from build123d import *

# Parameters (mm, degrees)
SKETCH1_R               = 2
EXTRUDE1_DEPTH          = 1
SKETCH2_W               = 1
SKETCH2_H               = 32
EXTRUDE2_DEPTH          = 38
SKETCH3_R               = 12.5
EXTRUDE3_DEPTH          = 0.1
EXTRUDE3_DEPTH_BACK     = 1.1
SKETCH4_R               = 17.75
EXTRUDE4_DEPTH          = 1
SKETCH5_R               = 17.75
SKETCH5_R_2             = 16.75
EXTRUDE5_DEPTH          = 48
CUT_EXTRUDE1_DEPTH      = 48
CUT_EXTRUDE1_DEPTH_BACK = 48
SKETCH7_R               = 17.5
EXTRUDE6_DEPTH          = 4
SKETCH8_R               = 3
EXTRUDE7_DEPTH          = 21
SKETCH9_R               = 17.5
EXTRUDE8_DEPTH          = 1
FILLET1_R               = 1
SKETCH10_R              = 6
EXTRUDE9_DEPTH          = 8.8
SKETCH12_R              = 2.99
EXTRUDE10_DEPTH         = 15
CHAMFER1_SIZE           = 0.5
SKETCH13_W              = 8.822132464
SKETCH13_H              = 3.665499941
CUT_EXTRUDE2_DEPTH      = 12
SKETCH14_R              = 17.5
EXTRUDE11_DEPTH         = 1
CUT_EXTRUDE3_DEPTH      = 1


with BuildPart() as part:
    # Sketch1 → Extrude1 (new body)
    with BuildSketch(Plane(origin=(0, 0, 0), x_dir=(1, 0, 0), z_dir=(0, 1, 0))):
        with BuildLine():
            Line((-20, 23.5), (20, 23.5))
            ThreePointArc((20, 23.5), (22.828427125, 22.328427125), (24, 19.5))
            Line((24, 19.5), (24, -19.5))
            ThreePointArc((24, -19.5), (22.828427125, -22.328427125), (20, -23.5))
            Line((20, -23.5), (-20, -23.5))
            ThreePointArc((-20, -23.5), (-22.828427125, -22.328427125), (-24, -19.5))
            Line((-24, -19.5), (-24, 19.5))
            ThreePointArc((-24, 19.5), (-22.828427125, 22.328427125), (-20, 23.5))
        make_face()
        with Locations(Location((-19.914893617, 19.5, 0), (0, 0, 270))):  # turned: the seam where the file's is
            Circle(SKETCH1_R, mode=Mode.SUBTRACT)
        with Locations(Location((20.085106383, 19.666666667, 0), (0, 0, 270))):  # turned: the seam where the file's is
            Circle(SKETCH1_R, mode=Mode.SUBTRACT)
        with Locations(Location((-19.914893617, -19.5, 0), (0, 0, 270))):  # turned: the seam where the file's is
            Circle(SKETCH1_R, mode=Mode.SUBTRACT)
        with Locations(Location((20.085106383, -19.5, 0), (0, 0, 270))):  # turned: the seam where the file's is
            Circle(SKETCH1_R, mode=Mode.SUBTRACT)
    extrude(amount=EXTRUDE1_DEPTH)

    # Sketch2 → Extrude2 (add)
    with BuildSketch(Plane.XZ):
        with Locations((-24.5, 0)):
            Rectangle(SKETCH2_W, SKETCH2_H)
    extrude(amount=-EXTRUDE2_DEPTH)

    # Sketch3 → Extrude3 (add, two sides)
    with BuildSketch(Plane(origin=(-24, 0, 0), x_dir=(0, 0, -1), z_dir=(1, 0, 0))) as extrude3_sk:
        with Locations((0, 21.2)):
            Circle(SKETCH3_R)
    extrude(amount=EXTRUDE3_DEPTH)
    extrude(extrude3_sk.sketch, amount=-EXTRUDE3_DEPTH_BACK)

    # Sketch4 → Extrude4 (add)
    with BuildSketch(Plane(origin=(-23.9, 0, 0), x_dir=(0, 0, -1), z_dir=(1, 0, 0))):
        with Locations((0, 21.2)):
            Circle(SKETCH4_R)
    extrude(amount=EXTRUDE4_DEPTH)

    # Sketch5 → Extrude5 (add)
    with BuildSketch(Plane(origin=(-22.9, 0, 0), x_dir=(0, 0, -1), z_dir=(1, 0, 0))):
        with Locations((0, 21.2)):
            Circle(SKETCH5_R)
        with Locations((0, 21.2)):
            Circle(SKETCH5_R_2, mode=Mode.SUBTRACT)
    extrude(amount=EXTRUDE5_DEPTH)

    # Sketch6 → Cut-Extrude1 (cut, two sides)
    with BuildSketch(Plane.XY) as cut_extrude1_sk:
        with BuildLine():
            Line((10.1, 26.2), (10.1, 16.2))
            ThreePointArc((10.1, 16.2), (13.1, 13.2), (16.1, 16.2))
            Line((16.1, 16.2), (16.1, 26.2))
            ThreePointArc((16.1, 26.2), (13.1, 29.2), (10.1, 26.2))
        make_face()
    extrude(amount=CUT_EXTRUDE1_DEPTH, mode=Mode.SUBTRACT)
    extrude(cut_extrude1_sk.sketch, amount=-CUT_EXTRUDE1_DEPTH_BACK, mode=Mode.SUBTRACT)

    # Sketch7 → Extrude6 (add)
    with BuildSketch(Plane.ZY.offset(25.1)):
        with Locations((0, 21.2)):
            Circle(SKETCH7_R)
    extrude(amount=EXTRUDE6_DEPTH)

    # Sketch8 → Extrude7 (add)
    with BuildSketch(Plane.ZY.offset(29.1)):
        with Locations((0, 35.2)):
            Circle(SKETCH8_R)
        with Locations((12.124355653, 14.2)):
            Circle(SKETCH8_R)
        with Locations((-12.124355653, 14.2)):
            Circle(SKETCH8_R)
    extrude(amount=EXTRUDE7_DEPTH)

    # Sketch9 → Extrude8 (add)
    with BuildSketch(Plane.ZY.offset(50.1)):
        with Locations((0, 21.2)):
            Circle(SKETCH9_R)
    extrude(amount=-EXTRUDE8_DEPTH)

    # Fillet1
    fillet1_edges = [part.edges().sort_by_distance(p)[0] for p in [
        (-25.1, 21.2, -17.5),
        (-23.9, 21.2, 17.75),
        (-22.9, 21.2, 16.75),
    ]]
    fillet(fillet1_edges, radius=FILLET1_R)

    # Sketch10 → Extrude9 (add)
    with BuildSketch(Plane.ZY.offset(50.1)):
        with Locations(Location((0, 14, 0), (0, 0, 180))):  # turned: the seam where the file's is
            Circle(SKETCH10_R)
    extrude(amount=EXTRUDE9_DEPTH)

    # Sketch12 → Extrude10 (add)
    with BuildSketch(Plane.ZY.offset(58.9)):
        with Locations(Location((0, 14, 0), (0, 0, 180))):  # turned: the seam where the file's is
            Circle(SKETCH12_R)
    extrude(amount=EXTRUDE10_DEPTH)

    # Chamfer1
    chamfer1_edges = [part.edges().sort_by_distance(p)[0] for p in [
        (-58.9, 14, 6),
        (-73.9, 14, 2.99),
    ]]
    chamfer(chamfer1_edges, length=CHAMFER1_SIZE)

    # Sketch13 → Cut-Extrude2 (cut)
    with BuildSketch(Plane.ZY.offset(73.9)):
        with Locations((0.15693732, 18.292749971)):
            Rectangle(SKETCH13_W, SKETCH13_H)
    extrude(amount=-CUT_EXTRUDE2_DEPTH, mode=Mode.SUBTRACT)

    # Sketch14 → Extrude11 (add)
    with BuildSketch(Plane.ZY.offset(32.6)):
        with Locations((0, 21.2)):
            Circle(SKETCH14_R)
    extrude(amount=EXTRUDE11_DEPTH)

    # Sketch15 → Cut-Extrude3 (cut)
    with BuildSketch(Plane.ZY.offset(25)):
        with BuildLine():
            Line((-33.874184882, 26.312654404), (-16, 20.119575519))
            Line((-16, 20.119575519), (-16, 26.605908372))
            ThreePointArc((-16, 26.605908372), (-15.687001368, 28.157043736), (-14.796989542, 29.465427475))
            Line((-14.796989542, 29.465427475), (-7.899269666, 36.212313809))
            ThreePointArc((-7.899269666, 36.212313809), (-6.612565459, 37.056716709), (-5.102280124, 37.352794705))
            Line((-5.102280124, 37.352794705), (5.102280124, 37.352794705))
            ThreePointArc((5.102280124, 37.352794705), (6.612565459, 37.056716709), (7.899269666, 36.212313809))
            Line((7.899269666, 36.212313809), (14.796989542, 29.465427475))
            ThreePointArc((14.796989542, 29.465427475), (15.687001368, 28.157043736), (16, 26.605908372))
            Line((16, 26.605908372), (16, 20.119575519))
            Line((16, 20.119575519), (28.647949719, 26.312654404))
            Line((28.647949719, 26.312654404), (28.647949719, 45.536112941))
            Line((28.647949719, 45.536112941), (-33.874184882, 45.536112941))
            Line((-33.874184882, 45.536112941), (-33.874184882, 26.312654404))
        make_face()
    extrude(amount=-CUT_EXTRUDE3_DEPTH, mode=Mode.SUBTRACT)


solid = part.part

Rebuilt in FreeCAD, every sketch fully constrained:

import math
import FreeCAD as App
import Part
import Sketcher
from FreeCAD import Vector
Q = App.Units.Quantity


def edges_at(feature, points):
    """Names of the edges that pass closest to the given points."""
    edges = feature.Shape.Edges
    near = lambda p: min(range(len(edges)), key=lambda i: edges[i].distToShape(Part.Vertex(*p))[0])
    return sorted({f"Edge{near(p) + 1}" for p in points})

doc = App.newDocument("Part")
body = doc.addObject("PartDesign::Body", "Body")

# Sketch on XZ plane
sketch1 = body.newObject("Sketcher::SketchObject", "Sketch")
sketch1.AttachmentSupport = (doc.getObject("XZ_Plane"), [""])
sketch1.MapMode = "FlatFace"
sketch1.addGeometry([
    Part.LineSegment(Vector(20, -23.5, 0), Vector(-20, -23.5, 0)),  # 0
    Part.ArcOfCircle(Part.Circle(Vector(-20, -19.5, 0), Vector(0, 0, 1), 4), math.radians(180), math.radians(270)),  # 1
    Part.LineSegment(Vector(-24, -19.5, 0), Vector(-24, 19.5, 0)),  # 2
    Part.ArcOfCircle(Part.Circle(Vector(-20, 19.5, 0), Vector(0, 0, 1), 4), math.radians(90), math.radians(180)),  # 3
    Part.LineSegment(Vector(-20, 23.5, 0), Vector(20, 23.5, 0)),  # 4
    Part.ArcOfCircle(Part.Circle(Vector(20, 19.5, 0), Vector(0, 0, 1), 4), math.radians(0), math.radians(90)),  # 5
    Part.LineSegment(Vector(24, 19.5, 0), Vector(24, -19.5, 0)),  # 6
    Part.ArcOfCircle(Part.Circle(Vector(20, -19.5, 0), Vector(0, 0, 1), 4), math.radians(-90), math.radians(0)),  # 7
    Part.Circle(Vector(20.1, 19.5, 0), Vector(0, 0, 1), 2),  # 8
    Part.Circle(Vector(-19.9, 19.5, 0), Vector(0, 0, 1), 2),  # 9
    Part.Circle(Vector(20.1, -19.7, 0), Vector(0, 0, 1), 2),  # 10
    Part.Circle(Vector(-19.9, -19.5, 0), Vector(0, 0, 1), 2),  # 11
], False)
sketch1.addConstraint([
    Sketcher.Constraint("Tangent", 0, 2, 1, 2),
    Sketcher.Constraint("Tangent", 1, 1, 2, 1),
    Sketcher.Constraint("Tangent", 2, 2, 3, 2),
    Sketcher.Constraint("Tangent", 3, 1, 4, 1),
    Sketcher.Constraint("Tangent", 4, 2, 5, 2),
    Sketcher.Constraint("Tangent", 5, 1, 6, 1),
    Sketcher.Constraint("Tangent", 6, 2, 7, 2),
    Sketcher.Constraint("Tangent", 7, 1, 0, 1),
    Sketcher.Constraint("Horizontal", 0),
    Sketcher.Constraint("Vertical", 2),
    Sketcher.Constraint("Horizontal", 4),
    Sketcher.Constraint("Vertical", 6),
    Sketcher.Constraint("Equal", 1, 3),
    Sketcher.Constraint("Equal", 3, 5),
    Sketcher.Constraint("Equal", 5, 7),
    Sketcher.Constraint("Equal", 8, 9),
    Sketcher.Constraint("Equal", 9, 10),
    Sketcher.Constraint("Equal", 10, 11),
    Sketcher.Constraint("Symmetric", 1, 3, 5, 3, -1, 1),
    Sketcher.Constraint("Symmetric", 9, 3, 11, 3, -1),
    Sketcher.Constraint("Horizontal", 5, 3, 8, 3),
    Sketcher.Constraint("Horizontal", 8, 3, 9, 3),
    Sketcher.Constraint("Vertical", 8, 3, 10, 3),
    Sketcher.Constraint("Diameter", 8, Q("4 mm")),
    Sketcher.Constraint("Radius", 1, Q("4 mm")),
    Sketcher.Constraint("DistanceX", 0, 2, 0, 1, Q("40 mm")),
    Sketcher.Constraint("DistanceY", 2, 1, 2, 2, Q("39 mm")),
    Sketcher.Constraint("DistanceX", 9, 3, 8, 3, Q("40 mm")),
    Sketcher.Constraint("DistanceX", -1, 1, 8, 3, Q("20.085106 mm")),
    Sketcher.Constraint("DistanceY", 10, 3, -1, 1, Q("19.666667 mm")),
])
pad1 = body.newObject("PartDesign::Pad", "Pad")
pad1.Profile = sketch1
pad1.Length = 1
pad1.Reversed = True

# Sketch on XZ plane
sketch2 = body.newObject("Sketcher::SketchObject", "Sketch001")
sketch2.AttachmentSupport = (doc.getObject("XZ_Plane"), [""])
sketch2.MapMode = "FlatFace"
sketch2.addGeometry([
    Part.LineSegment(Vector(-25, 16, 0), Vector(-25, -16, 0)),
    Part.LineSegment(Vector(-25, -16, 0), Vector(-24, -16, 0)),
    Part.LineSegment(Vector(-24, -16, 0), Vector(-24, 16, 0)),
    Part.LineSegment(Vector(-24, 16, 0), Vector(-25, 16, 0)),
], False)
sketch2.addConstraint([
    Sketcher.Constraint("Coincident", 0, 2, 1, 1),
    Sketcher.Constraint("Coincident", 1, 2, 2, 1),
    Sketcher.Constraint("Coincident", 2, 2, 3, 1),
    Sketcher.Constraint("Coincident", 3, 2, 0, 1),
    Sketcher.Constraint("Vertical", 0),
    Sketcher.Constraint("Horizontal", 1),
    Sketcher.Constraint("Vertical", 2),
    Sketcher.Constraint("Horizontal", 3),
    Sketcher.Constraint("DistanceX", 1, 1, 1, 2, Q("1 mm")),
    Sketcher.Constraint("DistanceY", 0, 2, 0, 1, Q("32 mm")),
    Sketcher.Constraint("DistanceX", 0, 2, -1, 1, Q("25 mm")),
    Sketcher.Constraint("DistanceY", 0, 2, -1, 1, Q("16 mm")),
])
pad2 = body.newObject("PartDesign::Pad", "Pad001")
pad2.Profile = sketch2
pad2.Length = 38
pad2.Reversed = True

# Sketch on YZ plane
sketch3 = body.newObject("Sketcher::SketchObject", "Sketch002")
sketch3.AttachmentSupport = (doc.getObject("YZ_Plane"), [""])
sketch3.MapMode = "FlatFace"
sketch3.AttachmentOffset = App.Placement(Vector(0, 0, -24), App.Rotation())
sketch3.addGeometry(Part.Circle(Vector(21, 0, 0), Vector(0, 0, 1), 12), False)
sketch3.addConstraint([
    Sketcher.Constraint("PointOnObject", 0, 3, -1),
    Sketcher.Constraint("Diameter", 0, Q("25 mm")),
    Sketcher.Constraint("DistanceX", -1, 1, 0, 3, Q("21.2 mm")),
])
pad3 = body.newObject("PartDesign::Pad", "Pad002")
pad3.Profile = sketch3
pad3.Type = "TwoLengths"
pad3.Length = 0.1
pad3.Length2 = 1.1

# Sketch on YZ plane
sketch4 = body.newObject("Sketcher::SketchObject", "Sketch003")
sketch4.AttachmentSupport = (doc.getObject("YZ_Plane"), [""])
sketch4.MapMode = "FlatFace"
sketch4.AttachmentOffset = App.Placement(Vector(0, 0, -23.9), App.Rotation())
sketch4.addGeometry(Part.Circle(Vector(21, 0, 0), Vector(0, 0, 1), 18), False)
sketch4.addConstraint([
    Sketcher.Constraint("PointOnObject", 0, 3, -1),
    Sketcher.Constraint("Diameter", 0, Q("35.5 mm")),
    Sketcher.Constraint("DistanceX", -1, 1, 0, 3, Q("21.2 mm")),
])
pad4 = body.newObject("PartDesign::Pad", "Pad003")
pad4.Profile = sketch4
pad4.Length = 1

# Sketch on YZ plane
sketch5 = body.newObject("Sketcher::SketchObject", "Sketch004")
sketch5.AttachmentSupport = (doc.getObject("YZ_Plane"), [""])
sketch5.MapMode = "FlatFace"
sketch5.AttachmentOffset = App.Placement(Vector(0, 0, -22.9), App.Rotation())
sketch5.addGeometry([
    Part.Circle(Vector(21, 0, 0), Vector(0, 0, 1), 18),
    Part.Circle(Vector(21, 0, 0), Vector(0, 0, 1), 17),
], False)
sketch5.addConstraint([
    Sketcher.Constraint("Coincident", 1, 3, 0, 3),
    Sketcher.Constraint("PointOnObject", 0, 3, -1),
    Sketcher.Constraint("Diameter", 0, Q("35.5 mm")),
    Sketcher.Constraint("Diameter", 1, Q("33.5 mm")),
    Sketcher.Constraint("DistanceX", -1, 1, 0, 3, Q("21.2 mm")),
])
pad5 = body.newObject("PartDesign::Pad", "Pad004")
pad5.Profile = sketch5
pad5.Length = 48

# Sketch on XY plane
sketch6 = body.newObject("Sketcher::SketchObject", "Sketch005")
sketch6.AttachmentSupport = (doc.getObject("XY_Plane"), [""])
sketch6.MapMode = "FlatFace"
sketch6.addGeometry([
    Part.LineSegment(Vector(10.1, 26.2, 0), Vector(10.1, 16.2, 0)),
    Part.ArcOfCircle(Part.Circle(Vector(13.1, 16.2, 0), Vector(0, 0, 1), 3), math.radians(180), math.radians(360)),
    Part.LineSegment(Vector(16.1, 16.2, 0), Vector(16.1, 26.2, 0)),
    Part.ArcOfCircle(Part.Circle(Vector(13.1, 26.2, 0), Vector(0, 0, 1), 3), math.radians(0), math.radians(180)),
], False)
sketch6.addConstraint([
    Sketcher.Constraint("Tangent", 0, 2, 1, 1),
    Sketcher.Constraint("Tangent", 1, 2, 2, 1),
    Sketcher.Constraint("Tangent", 2, 2, 3, 1),
    Sketcher.Constraint("Tangent", 3, 2, 0, 1),
    Sketcher.Constraint("Vertical", 0),
    Sketcher.Constraint("Vertical", 2),
    Sketcher.Constraint("Radius", 1, Q("3 mm")),
    Sketcher.Constraint("DistanceY", 0, 2, 0, 1, Q("10 mm")),
    Sketcher.Constraint("DistanceX", -1, 1, 1, 3, Q("13.1 mm")),
    Sketcher.Constraint("DistanceY", -1, 1, 1, 3, Q("16.2 mm")),
])
pocket1 = body.newObject("PartDesign::Pocket", "Pocket")
pocket1.Profile = sketch6
pocket1.Type = "ThroughAll"
pocket1.Midplane = True

# Sketch on YZ plane
sketch7 = body.newObject("Sketcher::SketchObject", "Sketch006")
sketch7.AttachmentSupport = (doc.getObject("YZ_Plane"), [""])
sketch7.MapMode = "FlatFace"
sketch7.AttachmentOffset = App.Placement(Vector(0, 0, -25.1), App.Rotation())
sketch7.addGeometry(Part.Circle(Vector(21, 0, 0), Vector(0, 0, 1), 18), False)
sketch7.addConstraint([
    Sketcher.Constraint("PointOnObject", 0, 3, -1),
    Sketcher.Constraint("Diameter", 0, Q("35 mm")),
    Sketcher.Constraint("DistanceX", -1, 1, 0, 3, Q("21.2 mm")),
])
pad6 = body.newObject("PartDesign::Pad", "Pad005")
pad6.Profile = sketch7
pad6.Length = 4
pad6.Reversed = True

# Sketch on YZ plane
sketch8 = body.newObject("Sketcher::SketchObject", "Sketch007")
sketch8.AttachmentSupport = (doc.getObject("YZ_Plane"), [""])
sketch8.MapMode = "FlatFace"
sketch8.AttachmentOffset = App.Placement(Vector(0, 0, -29.1), App.Rotation())
sketch8.addGeometry([
    Part.Circle(Vector(35.2, 0, 0), Vector(0, 0, 1), 3),
    Part.Circle(Vector(14.2, 12.1, 0), Vector(0, 0, 1), 3),
    Part.Circle(Vector(14.2, -12.1, 0), Vector(0, 0, 1), 3),
], False)
sketch8.addConstraint([
    Sketcher.Constraint("Equal", 0, 1),
    Sketcher.Constraint("Equal", 1, 2),
    Sketcher.Constraint("Symmetric", 1, 3, 2, 3, -1),
    Sketcher.Constraint("PointOnObject", 0, 3, -1),
    Sketcher.Constraint("Diameter", 0, Q("6 mm")),
    Sketcher.Constraint("DistanceX", 1, 3, 0, 3, Q("21 mm")),
    Sketcher.Constraint("DistanceX", -1, 1, 0, 3, Q("35.2 mm")),
    Sketcher.Constraint("DistanceY", 2, 3, 1, 3, Q("24.248711 mm")),
])
pad7 = body.newObject("PartDesign::Pad", "Pad006")
pad7.Profile = sketch8
pad7.Length = 21
pad7.Reversed = True

# Sketch on YZ plane
sketch9 = body.newObject("Sketcher::SketchObject", "Sketch008")
sketch9.AttachmentSupport = (doc.getObject("YZ_Plane"), [""])
sketch9.MapMode = "FlatFace"
sketch9.AttachmentOffset = App.Placement(Vector(0, 0, -50.1), App.Rotation())
sketch9.addGeometry(Part.Circle(Vector(21, 0, 0), Vector(0, 0, 1), 18), False)
sketch9.addConstraint([
    Sketcher.Constraint("PointOnObject", 0, 3, -1),
    Sketcher.Constraint("Diameter", 0, Q("35 mm")),
    Sketcher.Constraint("DistanceX", -1, 1, 0, 3, Q("21.2 mm")),
])
pad8 = body.newObject("PartDesign::Pad", "Pad007")
pad8.Profile = sketch9
pad8.Length = 1
doc.recompute()

fillet = body.newObject("PartDesign::Fillet", "Fillet")
fillet.Base = (pad8, edges_at(pad8, [(-25.1, 21.2, -17.5), (-23.9, 21.2, 17.75), (-22.9, 21.2, 16.75)]))
fillet.Radius = 1

# Sketch on YZ plane
sketch10 = body.newObject("Sketcher::SketchObject", "Sketch009")
sketch10.AttachmentSupport = (doc.getObject("YZ_Plane"), [""])
sketch10.MapMode = "FlatFace"
sketch10.AttachmentOffset = App.Placement(Vector(0, 0, -50.1), App.Rotation())
sketch10.addGeometry(Part.Circle(Vector(14, 0, 0), Vector(0, 0, 1), 6), False)
sketch10.addConstraint([
    Sketcher.Constraint("PointOnObject", 0, 3, -1),
    Sketcher.Constraint("Diameter", 0, Q("12 mm")),
    Sketcher.Constraint("DistanceX", -1, 1, 0, 3, Q("14 mm")),
])
pad9 = body.newObject("PartDesign::Pad", "Pad008")
pad9.Profile = sketch10
pad9.Length = 8.8
pad9.Reversed = True

# Sketch on YZ plane
sketch11 = body.newObject("Sketcher::SketchObject", "Sketch010")
sketch11.AttachmentSupport = (doc.getObject("YZ_Plane"), [""])
sketch11.MapMode = "FlatFace"
sketch11.AttachmentOffset = App.Placement(Vector(0, 0, -58.9), App.Rotation())
sketch11.addGeometry(Part.Circle(Vector(14, 0, 0), Vector(0, 0, 1), 3), False)
sketch11.addConstraint([
    Sketcher.Constraint("PointOnObject", 0, 3, -1),
    Sketcher.Constraint("Diameter", 0, Q("5.98 mm")),
    Sketcher.Constraint("DistanceX", -1, 1, 0, 3, Q("14 mm")),
])
pad10 = body.newObject("PartDesign::Pad", "Pad009")
pad10.Profile = sketch11
pad10.Length = 15
pad10.Reversed = True
doc.recompute()

chamfer = body.newObject("PartDesign::Chamfer", "Chamfer")
chamfer.Base = (pad10, edges_at(pad10, [(-58.9, 14, 6), (-73.9, 14, 2.99)]))
chamfer.Size = 0.5

# Sketch on YZ plane
sketch12 = body.newObject("Sketcher::SketchObject", "Sketch011")
sketch12.AttachmentSupport = (doc.getObject("YZ_Plane"), [""])
sketch12.MapMode = "FlatFace"
sketch12.AttachmentOffset = App.Placement(Vector(0, 0, -73.9), App.Rotation())
sketch12.addGeometry([
    Part.LineSegment(Vector(20.1, -4.3, 0), Vector(16.5, -4.3, 0)),
    Part.LineSegment(Vector(16.5, -4.3, 0), Vector(16.5, 4.6, 0)),
    Part.LineSegment(Vector(16.5, 4.6, 0), Vector(20.1, 4.6, 0)),
    Part.LineSegment(Vector(20.1, 4.6, 0), Vector(20.1, -4.3, 0)),
], False)
sketch12.addConstraint([
    Sketcher.Constraint("Coincident", 0, 2, 1, 1),
    Sketcher.Constraint("Coincident", 1, 2, 2, 1),
    Sketcher.Constraint("Coincident", 2, 2, 3, 1),
    Sketcher.Constraint("Coincident", 3, 2, 0, 1),
    Sketcher.Constraint("Horizontal", 0),
    Sketcher.Constraint("Vertical", 1),
    Sketcher.Constraint("Horizontal", 2),
    Sketcher.Constraint("Vertical", 3),
    Sketcher.Constraint("DistanceX", -1, 1, 0, 2, Q("16.46 mm")),
    Sketcher.Constraint("DistanceX", 0, 2, 0, 1, Q("3.6655 mm")),
    Sketcher.Constraint("DistanceY", 1, 1, 1, 2, Q("8.822132 mm")),
    Sketcher.Constraint("DistanceY", 0, 2, -1, 1, Q("4.254129 mm")),
])
pocket2 = body.newObject("PartDesign::Pocket", "Pocket001")
pocket2.Profile = sketch12
pocket2.Length = 12
pocket2.Reversed = True

# Sketch on YZ plane
sketch13 = body.newObject("Sketcher::SketchObject", "Sketch012")
sketch13.AttachmentSupport = (doc.getObject("YZ_Plane"), [""])
sketch13.MapMode = "FlatFace"
sketch13.AttachmentOffset = App.Placement(Vector(0, 0, -32.6), App.Rotation())
sketch13.addGeometry(Part.Circle(Vector(21, 0, 0), Vector(0, 0, 1), 18), False)
sketch13.addConstraint([
    Sketcher.Constraint("PointOnObject", 0, 3, -1),
    Sketcher.Constraint("Diameter", 0, Q("35 mm")),
    Sketcher.Constraint("DistanceX", -1, 1, 0, 3, Q("21.2 mm")),
])
pad11 = body.newObject("PartDesign::Pad", "Pad010")
pad11.Profile = sketch13
pad11.Length = 1
pad11.Reversed = True

# Sketch on YZ plane
sketch14 = body.newObject("Sketcher::SketchObject", "Sketch013")
sketch14.AttachmentSupport = (doc.getObject("YZ_Plane"), [""])
sketch14.MapMode = "FlatFace"
sketch14.AttachmentOffset = App.Placement(Vector(0, 0, -25), App.Rotation())
sketch14.addGeometry([
    Part.LineSegment(Vector(26.3, -33.9, 0), Vector(20.1, -16, 0)),  # 0
    Part.LineSegment(Vector(20.1, -16, 0), Vector(26.6, -16, 0)),  # 1
    Part.ArcOfCircle(Part.Circle(Vector(26.6, -12, 0), Vector(0, 0, 1), 4), math.radians(-90), math.radians(-44)),  # 2
    Part.LineSegment(Vector(29.5, -14.8, 0), Vector(36.2, -7.9, 0)),  # 3
    Part.ArcOfCircle(Part.Circle(Vector(33.4, -5.1, 0), Vector(0, 0, 1), 4), math.radians(-44), math.radians(0)),  # 4
    Part.LineSegment(Vector(37.4, -5.1, 0), Vector(37.4, 5.1, 0)),  # 5
    Part.ArcOfCircle(Part.Circle(Vector(33.4, 5.1, 0), Vector(0, 0, 1), 4), math.radians(0), math.radians(44)),  # 6
    Part.LineSegment(Vector(36.2, 7.9, 0), Vector(29.5, 14.8, 0)),  # 7
    Part.ArcOfCircle(Part.Circle(Vector(26.6, 12, 0), Vector(0, 0, 1), 4), math.radians(44), math.radians(90)),  # 8
    Part.LineSegment(Vector(26.6, 16, 0), Vector(20.1, 16, 0)),  # 9
    Part.LineSegment(Vector(20.1, 16, 0), Vector(26.3, 28.6, 0)),  # 10
    Part.LineSegment(Vector(26.3, 28.6, 0), Vector(45.5, 28.6, 0)),  # 11
    Part.LineSegment(Vector(45.5, 28.6, 0), Vector(45.5, -33.9, 0)),  # 12
    Part.LineSegment(Vector(45.5, -33.9, 0), Vector(26.3, -33.9, 0)),  # 13
], False)
sketch14.addConstraint([
    Sketcher.Constraint("Coincident", 0, 2, 1, 1),
    Sketcher.Constraint("Tangent", 1, 2, 2, 1),
    Sketcher.Constraint("Tangent", 2, 2, 3, 1),
    Sketcher.Constraint("Tangent", 3, 2, 4, 1),
    Sketcher.Constraint("Tangent", 4, 2, 5, 1),
    Sketcher.Constraint("Tangent", 5, 2, 6, 1),
    Sketcher.Constraint("Tangent", 6, 2, 7, 1),
    Sketcher.Constraint("Tangent", 7, 2, 8, 1),
    Sketcher.Constraint("Tangent", 8, 2, 9, 1),
    Sketcher.Constraint("Coincident", 9, 2, 10, 1),
    Sketcher.Constraint("Coincident", 10, 2, 11, 1),
    Sketcher.Constraint("Coincident", 11, 2, 12, 1),
    Sketcher.Constraint("Coincident", 12, 2, 13, 1),
    Sketcher.Constraint("Coincident", 13, 2, 0, 1),
    Sketcher.Constraint("Horizontal", 1),
    Sketcher.Constraint("Vertical", 5),
    Sketcher.Constraint("Horizontal", 9),
    Sketcher.Constraint("Horizontal", 11),
    Sketcher.Constraint("Vertical", 12),
    Sketcher.Constraint("Horizontal", 13),
    Sketcher.Constraint("Equal", 2, 4),
    Sketcher.Constraint("Equal", 4, 6),
    Sketcher.Constraint("Equal", 6, 8),
    Sketcher.Constraint("Symmetric", 2, 3, 8, 3, -1),
    Sketcher.Constraint("Vertical", 3, 2, 6, 2),
    Sketcher.Constraint("Vertical", 0, 2, 9, 2),
    Sketcher.Constraint("Vertical", 10, 2, 13, 2),
    Sketcher.Constraint("Radius", 2, Q("4 mm")),
    Sketcher.Constraint("DistanceY", 2, 3, -1, 1, Q("12 mm")),
    Sketcher.Constraint("DistanceX", 11, 1, 11, 2, Q("19.223459 mm")),
    Sketcher.Constraint("DistanceY", 5, 1, 5, 2, Q("10.20456 mm")),
    Sketcher.Constraint("DistanceX", 6, 2, 11, 2, Q("9.323799 mm")),
    Sketcher.Constraint("Distance", 0, Q("18.916678 mm")),
    Sketcher.Constraint("DistanceX", 1, 1, 1, 2, Q("6.486333 mm")),
    Sketcher.Constraint("DistanceY", 12, 2, 12, 1, Q("62.522135 mm")),
    Sketcher.Constraint("DistanceX", -1, 1, 2, 3, Q("26.605908 mm")),
    Sketcher.Constraint("DistanceY", 2, 2, -1, 1, Q("14.79699 mm")),
])
pocket3 = body.newObject("PartDesign::Pocket", "Pocket002")
pocket3.Profile = sketch14
pocket3.Length = 1
pocket3.Reversed = True

doc.recompute()
